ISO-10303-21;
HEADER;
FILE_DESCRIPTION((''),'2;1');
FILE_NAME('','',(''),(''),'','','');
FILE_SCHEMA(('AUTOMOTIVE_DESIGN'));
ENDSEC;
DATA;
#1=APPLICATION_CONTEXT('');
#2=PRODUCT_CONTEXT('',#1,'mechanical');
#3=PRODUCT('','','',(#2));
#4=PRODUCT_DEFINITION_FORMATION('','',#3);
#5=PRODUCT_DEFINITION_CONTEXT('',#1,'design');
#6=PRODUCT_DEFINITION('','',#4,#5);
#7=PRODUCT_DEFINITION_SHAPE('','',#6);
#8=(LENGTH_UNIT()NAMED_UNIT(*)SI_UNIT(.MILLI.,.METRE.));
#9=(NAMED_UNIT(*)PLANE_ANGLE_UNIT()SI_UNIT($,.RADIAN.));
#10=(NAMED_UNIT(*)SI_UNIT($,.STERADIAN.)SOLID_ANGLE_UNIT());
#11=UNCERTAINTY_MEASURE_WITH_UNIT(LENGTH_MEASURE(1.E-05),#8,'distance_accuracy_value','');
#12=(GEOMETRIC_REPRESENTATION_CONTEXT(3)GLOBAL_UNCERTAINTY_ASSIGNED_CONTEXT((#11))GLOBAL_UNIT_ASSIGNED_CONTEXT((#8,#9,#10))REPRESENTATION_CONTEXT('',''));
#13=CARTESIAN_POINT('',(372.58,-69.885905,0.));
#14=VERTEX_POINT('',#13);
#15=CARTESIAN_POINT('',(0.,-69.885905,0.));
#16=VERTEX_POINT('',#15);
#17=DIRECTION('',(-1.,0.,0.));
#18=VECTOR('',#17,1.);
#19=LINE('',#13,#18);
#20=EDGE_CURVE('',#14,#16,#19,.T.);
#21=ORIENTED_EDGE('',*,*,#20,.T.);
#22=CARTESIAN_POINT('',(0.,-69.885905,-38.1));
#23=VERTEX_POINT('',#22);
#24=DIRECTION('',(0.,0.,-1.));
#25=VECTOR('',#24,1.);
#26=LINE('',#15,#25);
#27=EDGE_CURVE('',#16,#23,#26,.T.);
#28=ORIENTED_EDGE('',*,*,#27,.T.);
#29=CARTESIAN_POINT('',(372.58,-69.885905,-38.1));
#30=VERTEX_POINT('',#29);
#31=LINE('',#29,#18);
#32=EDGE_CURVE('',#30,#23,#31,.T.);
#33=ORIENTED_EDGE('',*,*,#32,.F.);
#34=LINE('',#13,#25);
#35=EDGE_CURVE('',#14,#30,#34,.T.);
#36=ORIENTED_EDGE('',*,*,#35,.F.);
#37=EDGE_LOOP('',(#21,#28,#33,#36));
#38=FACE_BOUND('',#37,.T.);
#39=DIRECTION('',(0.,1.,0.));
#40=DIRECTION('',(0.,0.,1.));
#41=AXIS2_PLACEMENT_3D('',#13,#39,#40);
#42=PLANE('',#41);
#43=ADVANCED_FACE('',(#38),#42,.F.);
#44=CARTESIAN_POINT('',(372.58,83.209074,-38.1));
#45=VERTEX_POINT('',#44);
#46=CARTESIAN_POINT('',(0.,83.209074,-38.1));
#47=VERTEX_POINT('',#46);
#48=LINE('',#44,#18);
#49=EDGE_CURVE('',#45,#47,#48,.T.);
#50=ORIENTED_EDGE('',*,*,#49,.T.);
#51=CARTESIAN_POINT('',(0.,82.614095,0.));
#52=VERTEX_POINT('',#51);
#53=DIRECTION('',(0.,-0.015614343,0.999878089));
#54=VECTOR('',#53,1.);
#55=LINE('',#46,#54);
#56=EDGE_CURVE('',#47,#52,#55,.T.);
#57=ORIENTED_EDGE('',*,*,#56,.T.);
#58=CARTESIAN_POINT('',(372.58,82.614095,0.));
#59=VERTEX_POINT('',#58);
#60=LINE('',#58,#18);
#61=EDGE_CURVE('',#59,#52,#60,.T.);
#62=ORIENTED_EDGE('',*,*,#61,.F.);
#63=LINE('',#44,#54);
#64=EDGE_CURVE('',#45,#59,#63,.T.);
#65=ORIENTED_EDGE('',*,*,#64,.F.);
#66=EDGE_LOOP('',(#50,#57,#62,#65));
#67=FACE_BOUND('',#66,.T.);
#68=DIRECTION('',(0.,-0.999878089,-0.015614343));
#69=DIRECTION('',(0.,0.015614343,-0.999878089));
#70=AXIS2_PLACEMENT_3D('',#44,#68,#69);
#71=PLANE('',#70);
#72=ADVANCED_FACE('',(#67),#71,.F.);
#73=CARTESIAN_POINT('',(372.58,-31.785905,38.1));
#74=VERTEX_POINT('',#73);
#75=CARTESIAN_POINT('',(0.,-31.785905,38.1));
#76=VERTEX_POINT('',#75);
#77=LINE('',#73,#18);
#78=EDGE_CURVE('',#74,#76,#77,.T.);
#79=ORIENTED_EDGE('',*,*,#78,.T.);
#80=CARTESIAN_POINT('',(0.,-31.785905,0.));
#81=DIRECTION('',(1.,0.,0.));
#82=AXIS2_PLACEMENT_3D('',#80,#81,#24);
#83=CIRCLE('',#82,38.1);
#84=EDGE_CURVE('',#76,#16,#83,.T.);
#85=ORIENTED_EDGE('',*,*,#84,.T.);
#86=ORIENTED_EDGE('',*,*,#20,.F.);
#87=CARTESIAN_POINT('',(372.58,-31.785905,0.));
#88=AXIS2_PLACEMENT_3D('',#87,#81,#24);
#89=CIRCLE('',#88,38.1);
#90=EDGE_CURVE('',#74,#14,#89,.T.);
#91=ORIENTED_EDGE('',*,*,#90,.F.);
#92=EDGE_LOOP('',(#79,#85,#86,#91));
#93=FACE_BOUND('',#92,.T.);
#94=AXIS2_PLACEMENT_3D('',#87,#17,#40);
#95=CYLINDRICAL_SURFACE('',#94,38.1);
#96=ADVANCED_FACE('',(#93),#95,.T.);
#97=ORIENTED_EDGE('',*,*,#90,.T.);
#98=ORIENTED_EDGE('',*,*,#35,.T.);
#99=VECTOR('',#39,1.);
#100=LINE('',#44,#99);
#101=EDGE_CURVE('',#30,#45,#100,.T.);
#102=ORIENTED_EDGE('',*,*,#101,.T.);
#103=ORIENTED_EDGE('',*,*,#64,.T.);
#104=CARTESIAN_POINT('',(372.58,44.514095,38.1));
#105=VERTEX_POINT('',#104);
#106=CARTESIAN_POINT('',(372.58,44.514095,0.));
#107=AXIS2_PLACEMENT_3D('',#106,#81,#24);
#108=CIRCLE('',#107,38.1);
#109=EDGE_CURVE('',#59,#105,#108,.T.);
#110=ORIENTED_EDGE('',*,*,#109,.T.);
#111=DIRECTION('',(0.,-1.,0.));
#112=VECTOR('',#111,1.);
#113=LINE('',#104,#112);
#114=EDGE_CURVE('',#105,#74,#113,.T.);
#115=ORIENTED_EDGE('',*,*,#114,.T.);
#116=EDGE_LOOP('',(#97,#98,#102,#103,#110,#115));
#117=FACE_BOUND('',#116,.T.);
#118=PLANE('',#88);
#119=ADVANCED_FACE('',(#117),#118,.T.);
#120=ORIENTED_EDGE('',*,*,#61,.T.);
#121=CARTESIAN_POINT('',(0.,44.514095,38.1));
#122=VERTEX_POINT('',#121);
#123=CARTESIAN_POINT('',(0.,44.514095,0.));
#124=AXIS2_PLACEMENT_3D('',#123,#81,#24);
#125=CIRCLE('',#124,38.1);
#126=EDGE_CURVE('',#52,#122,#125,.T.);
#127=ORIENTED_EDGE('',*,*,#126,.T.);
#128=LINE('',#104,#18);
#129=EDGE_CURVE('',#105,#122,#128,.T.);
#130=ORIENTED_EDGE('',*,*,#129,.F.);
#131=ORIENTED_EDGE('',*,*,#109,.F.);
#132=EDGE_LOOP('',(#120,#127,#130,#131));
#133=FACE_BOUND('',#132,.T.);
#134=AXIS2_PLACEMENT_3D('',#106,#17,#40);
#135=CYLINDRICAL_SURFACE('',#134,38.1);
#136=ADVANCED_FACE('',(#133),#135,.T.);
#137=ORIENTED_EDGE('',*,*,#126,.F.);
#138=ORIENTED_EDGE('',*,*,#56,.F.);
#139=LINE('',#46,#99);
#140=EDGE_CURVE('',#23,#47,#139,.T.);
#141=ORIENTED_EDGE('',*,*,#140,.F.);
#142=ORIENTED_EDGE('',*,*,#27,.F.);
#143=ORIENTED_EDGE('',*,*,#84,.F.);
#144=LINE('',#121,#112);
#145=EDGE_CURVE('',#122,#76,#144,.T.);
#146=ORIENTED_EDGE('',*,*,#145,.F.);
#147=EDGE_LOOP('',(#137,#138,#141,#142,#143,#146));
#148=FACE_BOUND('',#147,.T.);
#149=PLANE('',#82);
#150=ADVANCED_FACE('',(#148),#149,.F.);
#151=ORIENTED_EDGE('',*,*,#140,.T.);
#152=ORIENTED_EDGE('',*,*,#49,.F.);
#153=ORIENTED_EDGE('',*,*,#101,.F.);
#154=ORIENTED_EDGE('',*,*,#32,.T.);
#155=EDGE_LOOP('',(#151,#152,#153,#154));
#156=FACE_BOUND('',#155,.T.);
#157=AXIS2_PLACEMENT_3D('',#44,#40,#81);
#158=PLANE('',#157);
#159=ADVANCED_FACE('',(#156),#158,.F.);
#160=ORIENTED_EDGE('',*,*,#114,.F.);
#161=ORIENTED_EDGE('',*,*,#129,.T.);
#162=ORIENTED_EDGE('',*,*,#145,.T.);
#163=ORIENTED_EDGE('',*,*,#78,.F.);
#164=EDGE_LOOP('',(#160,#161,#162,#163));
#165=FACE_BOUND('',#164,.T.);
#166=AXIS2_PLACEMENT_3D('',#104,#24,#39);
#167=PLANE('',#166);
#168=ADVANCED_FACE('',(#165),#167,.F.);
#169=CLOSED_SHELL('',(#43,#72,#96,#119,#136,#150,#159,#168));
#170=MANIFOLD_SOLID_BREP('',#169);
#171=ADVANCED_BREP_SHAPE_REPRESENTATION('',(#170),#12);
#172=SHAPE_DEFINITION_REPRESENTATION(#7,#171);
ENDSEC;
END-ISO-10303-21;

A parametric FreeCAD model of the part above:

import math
import FreeCAD as App
import Part
import Sketcher
from FreeCAD import Vector
Q = App.Units.Quantity

doc = App.newDocument("Part")
body = doc.addObject("PartDesign::Body", "Body")

sketch1 = doc.addObject("Sketcher::SketchObject", "Sketch")
body.addObject(sketch1)
sketch1.AttachmentSupport = (doc.YZ_Plane, [""])
sketch1.MapMode = "FlatFace"
sketch1.addGeometry(Part.LineSegment(Vector(83, -38, 0), Vector(83, 0, 0)), False)
sketch1.addGeometry(Part.ArcOfCircle(Part.Circle(Vector(45, 0, 0), Vector(0, 0, 1), 38), math.radians(0), math.radians(90)), False)
sketch1.addGeometry(Part.LineSegment(Vector(45, 38, 0), Vector(-32, 38, 0)), False)
sketch1.addGeometry(Part.ArcOfCircle(Part.Circle(Vector(-32, 0, 0), Vector(0, 0, 1), 38), math.radians(90), math.radians(180)), False)
sketch1.addGeometry(Part.LineSegment(Vector(-70, 0, 0), Vector(-70, -38, 0)), False)
sketch1.addGeometry(Part.LineSegment(Vector(-70, -38, 0), Vector(83, -38, 0)), False)
sketch1.addConstraint(Sketcher.Constraint("Coincident", 0, 2, 1, 1))
sketch1.addConstraint(Sketcher.Constraint("Tangent", 1, 2, 2, 1))
sketch1.addConstraint(Sketcher.Constraint("Tangent", 2, 2, 3, 1))
sketch1.addConstraint(Sketcher.Constraint("Tangent", 3, 2, 4, 1))
sketch1.addConstraint(Sketcher.Constraint("Coincident", 4, 2, 5, 1))
sketch1.addConstraint(Sketcher.Constraint("Coincident", 5, 2, 0, 1))
sketch1.addConstraint(Sketcher.Constraint("Horizontal", 2))
sketch1.addConstraint(Sketcher.Constraint("Vertical", 4))
sketch1.addConstraint(Sketcher.Constraint("Horizontal", 5))
sketch1.addConstraint(Sketcher.Constraint("Equal", 1, 3))
sketch1.addConstraint(Sketcher.Constraint("PointOnObject", 1, 3, -1))
sketch1.addConstraint(Sketcher.Constraint("PointOnObject", 0, 2, -1))
sketch1.addConstraint(Sketcher.Constraint("Radius", 1, Q("1.5 in")))
sketch1.addConstraint(Sketcher.Constraint("DistanceY", 4, 2, 4, 1, Q("1.5 in")))
sketch1.addConstraint(Sketcher.Constraint("DistanceX", 2, 2, 2, 1, 76.3))
sketch1.addConstraint(Sketcher.Constraint("DistanceX", 5, 1, 5, 2, 153.094979))
sketch1.addConstraint(Sketcher.Constraint("DistanceX", -1, 1, 1, 3, 44.514095))
pad1 = doc.addObject("PartDesign::Pad", "Pad")
body.addObject(pad1)
pad1.Profile = sketch1
pad1.Length = 372.58

doc.recompute()
